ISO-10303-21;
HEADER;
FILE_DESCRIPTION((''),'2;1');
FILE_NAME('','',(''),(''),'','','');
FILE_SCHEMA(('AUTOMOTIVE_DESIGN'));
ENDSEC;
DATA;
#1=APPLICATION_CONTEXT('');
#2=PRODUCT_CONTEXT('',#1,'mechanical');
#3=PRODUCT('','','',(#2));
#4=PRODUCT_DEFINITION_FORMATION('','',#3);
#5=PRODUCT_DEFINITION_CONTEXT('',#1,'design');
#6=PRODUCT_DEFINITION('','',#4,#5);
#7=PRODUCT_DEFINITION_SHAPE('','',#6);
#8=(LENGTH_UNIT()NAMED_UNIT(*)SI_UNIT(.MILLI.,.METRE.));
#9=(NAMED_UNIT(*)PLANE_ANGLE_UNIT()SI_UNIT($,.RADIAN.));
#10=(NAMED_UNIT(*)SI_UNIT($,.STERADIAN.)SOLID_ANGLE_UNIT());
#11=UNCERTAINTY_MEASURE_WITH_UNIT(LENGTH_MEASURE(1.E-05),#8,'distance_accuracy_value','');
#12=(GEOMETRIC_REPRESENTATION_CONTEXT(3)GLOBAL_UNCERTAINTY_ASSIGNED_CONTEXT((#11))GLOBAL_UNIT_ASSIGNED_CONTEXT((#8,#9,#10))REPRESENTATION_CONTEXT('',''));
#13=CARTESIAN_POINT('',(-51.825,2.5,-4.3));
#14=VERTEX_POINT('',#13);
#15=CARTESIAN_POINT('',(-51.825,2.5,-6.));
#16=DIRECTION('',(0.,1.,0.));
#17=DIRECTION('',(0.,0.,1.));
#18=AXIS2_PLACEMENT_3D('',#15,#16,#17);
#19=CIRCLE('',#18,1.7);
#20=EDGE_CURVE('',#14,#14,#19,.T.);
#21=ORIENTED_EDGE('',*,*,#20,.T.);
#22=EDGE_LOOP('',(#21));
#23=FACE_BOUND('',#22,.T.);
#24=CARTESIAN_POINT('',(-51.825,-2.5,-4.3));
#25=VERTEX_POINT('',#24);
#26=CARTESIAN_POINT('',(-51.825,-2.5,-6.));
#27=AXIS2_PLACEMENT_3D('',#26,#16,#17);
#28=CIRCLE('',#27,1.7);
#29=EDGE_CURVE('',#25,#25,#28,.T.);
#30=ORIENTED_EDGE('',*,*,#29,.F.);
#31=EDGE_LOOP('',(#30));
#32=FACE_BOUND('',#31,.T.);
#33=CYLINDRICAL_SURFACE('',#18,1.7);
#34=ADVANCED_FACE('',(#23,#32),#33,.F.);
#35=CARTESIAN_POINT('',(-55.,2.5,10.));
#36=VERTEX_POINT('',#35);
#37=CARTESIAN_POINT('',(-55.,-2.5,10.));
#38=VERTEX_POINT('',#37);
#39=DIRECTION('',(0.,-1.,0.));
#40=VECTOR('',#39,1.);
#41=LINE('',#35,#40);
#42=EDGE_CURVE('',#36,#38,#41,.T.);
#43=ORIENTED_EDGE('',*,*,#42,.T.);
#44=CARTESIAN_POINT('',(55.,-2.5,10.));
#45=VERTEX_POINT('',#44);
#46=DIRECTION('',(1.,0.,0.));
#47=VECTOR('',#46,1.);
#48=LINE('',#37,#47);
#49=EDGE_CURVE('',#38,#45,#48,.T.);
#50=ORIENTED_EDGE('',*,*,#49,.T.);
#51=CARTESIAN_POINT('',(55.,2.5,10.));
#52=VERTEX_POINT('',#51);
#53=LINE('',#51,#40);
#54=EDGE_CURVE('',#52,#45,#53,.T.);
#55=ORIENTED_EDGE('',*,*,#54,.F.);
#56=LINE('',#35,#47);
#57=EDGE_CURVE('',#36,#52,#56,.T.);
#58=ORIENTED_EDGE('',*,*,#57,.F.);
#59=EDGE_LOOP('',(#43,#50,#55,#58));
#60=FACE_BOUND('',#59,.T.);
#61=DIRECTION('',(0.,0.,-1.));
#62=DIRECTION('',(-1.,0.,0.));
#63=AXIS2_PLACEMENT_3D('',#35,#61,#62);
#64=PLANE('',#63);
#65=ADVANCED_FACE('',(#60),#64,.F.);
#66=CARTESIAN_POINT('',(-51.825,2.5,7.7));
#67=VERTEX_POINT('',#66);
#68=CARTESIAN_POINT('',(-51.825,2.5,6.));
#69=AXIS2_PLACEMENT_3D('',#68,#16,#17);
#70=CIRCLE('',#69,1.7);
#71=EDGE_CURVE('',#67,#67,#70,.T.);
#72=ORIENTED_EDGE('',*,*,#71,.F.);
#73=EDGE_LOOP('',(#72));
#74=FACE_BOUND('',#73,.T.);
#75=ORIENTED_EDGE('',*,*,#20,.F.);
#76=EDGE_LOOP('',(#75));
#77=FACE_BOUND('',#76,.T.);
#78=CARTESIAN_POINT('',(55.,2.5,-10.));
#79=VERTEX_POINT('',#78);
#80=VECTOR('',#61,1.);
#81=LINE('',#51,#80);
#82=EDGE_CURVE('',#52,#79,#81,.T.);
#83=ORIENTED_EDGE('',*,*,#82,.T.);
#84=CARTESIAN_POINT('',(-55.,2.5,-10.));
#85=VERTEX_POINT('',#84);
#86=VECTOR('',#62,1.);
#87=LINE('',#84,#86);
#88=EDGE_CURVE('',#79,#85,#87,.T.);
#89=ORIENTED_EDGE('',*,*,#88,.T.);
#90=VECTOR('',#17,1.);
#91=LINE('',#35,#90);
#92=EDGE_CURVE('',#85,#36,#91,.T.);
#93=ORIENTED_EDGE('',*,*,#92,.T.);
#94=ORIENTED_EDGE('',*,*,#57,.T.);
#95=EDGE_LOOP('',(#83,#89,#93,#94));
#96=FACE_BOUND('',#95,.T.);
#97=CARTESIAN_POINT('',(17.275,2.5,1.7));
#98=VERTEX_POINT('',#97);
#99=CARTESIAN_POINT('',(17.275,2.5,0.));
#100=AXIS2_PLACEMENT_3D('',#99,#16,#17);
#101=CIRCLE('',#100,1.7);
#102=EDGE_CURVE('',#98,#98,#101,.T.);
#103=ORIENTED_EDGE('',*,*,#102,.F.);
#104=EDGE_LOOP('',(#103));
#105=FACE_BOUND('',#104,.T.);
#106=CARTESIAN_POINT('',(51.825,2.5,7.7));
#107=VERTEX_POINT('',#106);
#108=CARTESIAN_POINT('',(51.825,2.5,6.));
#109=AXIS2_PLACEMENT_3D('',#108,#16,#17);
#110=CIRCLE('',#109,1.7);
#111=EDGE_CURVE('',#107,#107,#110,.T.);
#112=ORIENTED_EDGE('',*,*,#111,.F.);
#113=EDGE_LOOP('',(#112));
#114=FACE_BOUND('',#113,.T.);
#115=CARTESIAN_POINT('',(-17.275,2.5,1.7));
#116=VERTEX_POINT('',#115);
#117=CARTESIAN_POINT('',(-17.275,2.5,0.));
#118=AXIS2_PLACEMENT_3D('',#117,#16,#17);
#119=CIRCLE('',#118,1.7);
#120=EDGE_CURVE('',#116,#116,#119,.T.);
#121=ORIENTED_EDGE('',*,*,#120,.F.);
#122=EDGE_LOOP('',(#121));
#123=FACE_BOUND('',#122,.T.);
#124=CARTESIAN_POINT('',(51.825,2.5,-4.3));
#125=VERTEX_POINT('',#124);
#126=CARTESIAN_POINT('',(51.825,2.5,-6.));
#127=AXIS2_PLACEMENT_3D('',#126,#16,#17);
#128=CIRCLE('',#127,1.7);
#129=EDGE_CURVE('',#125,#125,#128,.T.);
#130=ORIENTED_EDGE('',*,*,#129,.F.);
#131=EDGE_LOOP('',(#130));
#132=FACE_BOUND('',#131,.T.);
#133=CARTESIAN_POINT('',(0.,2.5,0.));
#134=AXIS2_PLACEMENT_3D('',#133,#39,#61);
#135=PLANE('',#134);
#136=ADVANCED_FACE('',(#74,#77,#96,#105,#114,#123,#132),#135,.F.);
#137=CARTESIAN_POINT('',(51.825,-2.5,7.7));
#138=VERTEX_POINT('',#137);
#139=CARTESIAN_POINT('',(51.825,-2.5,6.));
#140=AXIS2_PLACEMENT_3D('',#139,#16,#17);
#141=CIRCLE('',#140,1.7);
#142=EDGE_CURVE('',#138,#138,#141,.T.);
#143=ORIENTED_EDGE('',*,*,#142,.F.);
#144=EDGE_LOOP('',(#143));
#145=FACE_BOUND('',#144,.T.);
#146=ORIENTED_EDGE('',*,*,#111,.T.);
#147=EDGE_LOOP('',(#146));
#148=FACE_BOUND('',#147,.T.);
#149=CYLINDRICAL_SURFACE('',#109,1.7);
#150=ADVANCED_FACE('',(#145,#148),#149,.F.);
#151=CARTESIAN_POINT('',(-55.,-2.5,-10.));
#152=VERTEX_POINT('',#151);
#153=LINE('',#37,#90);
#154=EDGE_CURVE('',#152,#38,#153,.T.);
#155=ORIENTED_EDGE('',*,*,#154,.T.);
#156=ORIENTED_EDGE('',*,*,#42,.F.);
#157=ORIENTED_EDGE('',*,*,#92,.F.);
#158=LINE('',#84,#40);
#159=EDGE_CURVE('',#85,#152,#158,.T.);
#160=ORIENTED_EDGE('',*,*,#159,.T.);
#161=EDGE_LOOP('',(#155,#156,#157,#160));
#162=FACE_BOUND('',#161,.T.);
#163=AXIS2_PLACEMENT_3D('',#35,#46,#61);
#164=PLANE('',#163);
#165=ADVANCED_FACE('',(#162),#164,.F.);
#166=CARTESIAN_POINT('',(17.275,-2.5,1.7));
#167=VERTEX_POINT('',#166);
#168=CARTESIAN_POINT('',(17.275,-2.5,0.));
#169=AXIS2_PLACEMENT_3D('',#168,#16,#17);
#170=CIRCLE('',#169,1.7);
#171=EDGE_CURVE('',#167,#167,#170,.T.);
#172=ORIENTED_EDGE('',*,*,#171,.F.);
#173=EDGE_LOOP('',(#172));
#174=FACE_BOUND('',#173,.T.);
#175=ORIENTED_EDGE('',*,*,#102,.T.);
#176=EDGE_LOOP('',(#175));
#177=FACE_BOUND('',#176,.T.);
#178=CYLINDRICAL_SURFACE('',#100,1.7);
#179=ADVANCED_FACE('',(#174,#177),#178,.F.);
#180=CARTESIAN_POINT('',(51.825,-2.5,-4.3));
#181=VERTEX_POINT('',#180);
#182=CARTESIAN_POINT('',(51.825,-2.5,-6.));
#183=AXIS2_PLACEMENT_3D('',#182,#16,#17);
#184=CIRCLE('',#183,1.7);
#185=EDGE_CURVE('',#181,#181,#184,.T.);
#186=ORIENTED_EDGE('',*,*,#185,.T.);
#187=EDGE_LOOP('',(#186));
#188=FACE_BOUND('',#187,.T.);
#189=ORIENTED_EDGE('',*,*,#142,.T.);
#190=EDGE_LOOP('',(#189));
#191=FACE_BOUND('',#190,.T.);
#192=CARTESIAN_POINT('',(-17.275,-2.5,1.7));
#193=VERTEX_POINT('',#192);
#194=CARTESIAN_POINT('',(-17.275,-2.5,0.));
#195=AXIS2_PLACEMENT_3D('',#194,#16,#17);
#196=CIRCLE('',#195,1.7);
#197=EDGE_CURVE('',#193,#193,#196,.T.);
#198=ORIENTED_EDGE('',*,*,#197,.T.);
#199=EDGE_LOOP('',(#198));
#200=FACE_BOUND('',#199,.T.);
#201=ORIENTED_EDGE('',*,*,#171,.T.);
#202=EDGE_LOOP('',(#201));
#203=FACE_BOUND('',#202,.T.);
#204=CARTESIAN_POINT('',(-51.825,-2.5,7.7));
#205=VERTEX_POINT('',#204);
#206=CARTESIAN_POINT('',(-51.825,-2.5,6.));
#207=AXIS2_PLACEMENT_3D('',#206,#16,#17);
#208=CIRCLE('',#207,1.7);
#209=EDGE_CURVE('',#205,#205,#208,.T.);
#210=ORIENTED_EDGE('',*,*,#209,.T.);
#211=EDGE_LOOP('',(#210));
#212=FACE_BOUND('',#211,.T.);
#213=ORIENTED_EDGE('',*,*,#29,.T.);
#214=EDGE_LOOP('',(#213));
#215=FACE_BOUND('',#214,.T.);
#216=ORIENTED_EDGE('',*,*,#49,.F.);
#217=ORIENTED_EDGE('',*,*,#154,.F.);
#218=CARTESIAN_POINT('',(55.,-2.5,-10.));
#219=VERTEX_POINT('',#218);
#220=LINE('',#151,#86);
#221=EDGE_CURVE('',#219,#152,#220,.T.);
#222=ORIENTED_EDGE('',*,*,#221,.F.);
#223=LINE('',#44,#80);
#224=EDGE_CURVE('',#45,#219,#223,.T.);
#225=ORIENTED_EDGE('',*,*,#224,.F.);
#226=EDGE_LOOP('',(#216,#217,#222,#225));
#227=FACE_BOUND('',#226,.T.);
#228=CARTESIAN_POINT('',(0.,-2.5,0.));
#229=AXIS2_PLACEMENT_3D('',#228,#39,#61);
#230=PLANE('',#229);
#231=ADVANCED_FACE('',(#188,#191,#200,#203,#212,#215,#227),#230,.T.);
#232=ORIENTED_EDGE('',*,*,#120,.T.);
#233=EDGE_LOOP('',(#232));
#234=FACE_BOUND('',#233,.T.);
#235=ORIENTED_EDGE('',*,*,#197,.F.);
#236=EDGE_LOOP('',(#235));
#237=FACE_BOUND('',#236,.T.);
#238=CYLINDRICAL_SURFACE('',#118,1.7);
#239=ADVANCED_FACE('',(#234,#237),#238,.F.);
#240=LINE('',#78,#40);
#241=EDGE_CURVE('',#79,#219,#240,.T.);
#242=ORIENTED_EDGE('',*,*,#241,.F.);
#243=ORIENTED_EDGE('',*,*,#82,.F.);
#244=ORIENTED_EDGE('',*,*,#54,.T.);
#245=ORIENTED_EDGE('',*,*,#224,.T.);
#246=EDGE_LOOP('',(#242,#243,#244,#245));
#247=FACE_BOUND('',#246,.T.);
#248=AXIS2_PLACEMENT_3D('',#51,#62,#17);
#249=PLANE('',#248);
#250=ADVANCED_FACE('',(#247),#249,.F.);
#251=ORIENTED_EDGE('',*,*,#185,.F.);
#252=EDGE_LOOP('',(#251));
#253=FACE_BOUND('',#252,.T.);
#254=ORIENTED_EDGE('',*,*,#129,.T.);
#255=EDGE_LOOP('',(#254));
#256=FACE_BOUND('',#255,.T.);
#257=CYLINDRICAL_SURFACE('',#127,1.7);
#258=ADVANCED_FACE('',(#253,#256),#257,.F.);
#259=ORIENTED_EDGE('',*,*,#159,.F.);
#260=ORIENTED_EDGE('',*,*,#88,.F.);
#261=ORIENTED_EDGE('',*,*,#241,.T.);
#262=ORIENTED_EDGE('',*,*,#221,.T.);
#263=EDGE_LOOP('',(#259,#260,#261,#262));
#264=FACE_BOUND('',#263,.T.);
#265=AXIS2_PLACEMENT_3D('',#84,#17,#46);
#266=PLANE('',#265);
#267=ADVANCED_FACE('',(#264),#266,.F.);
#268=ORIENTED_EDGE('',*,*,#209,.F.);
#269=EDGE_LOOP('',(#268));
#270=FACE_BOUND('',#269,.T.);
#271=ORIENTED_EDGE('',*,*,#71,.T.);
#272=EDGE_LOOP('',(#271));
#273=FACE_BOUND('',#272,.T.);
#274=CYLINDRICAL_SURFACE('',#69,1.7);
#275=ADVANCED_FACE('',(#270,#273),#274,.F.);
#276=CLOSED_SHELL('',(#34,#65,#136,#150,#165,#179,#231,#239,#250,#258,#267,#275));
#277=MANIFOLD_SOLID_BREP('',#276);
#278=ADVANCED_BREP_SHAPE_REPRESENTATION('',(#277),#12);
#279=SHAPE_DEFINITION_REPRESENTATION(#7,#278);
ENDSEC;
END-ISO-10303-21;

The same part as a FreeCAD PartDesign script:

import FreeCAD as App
import Part
import Sketcher
from FreeCAD import Vector
Q = App.Units.Quantity

doc = App.newDocument("Part")
body = doc.addObject("PartDesign::Body", "Body")

# Sketch on XZ plane
sketch1 = doc.addObject("Sketcher::SketchObject", "Sketch")
body.addObject(sketch1)
sketch1.AttachmentSupport = (doc.XZ_Plane, [""])
sketch1.MapMode = "FlatFace"
sketch1.addGeometry([
    Part.LineSegment(Vector(-55, -10, 0), Vector(-55, 10, 0)),
    Part.LineSegment(Vector(-55, 10, 0), Vector(55, 10, 0)),
    Part.LineSegment(Vector(55, 10, 0), Vector(55, -10, 0)),
    Part.LineSegment(Vector(55, -10, 0), Vector(-55, -10, 0)),
], False)
sketch1.addConstraint([
    Sketcher.Constraint("Coincident", 0, 2, 1, 1),
    Sketcher.Constraint("Coincident", 1, 2, 2, 1),
    Sketcher.Constraint("Coincident", 2, 2, 3, 1),
    Sketcher.Constraint("Coincident", 3, 2, 0, 1),
    Sketcher.Constraint("Vertical", 0),
    Sketcher.Constraint("Horizontal", 1),
    Sketcher.Constraint("Vertical", 2),
    Sketcher.Constraint("Horizontal", 3),
    Sketcher.Constraint("Symmetric", 0, 2, 2, 2, -1, 1),
    Sketcher.Constraint("DistanceX", 1, 1, 1, 2, Q("110 mm")),
    Sketcher.Constraint("DistanceY", 0, 1, 0, 2, Q("20 mm")),
])
pad1 = doc.addObject("PartDesign::Pad", "Pad")
body.addObject(pad1)
pad1.Profile = sketch1
pad1.Length = 5
pad1.Midplane = True

# Sketch on XZ plane
sketch2 = doc.addObject("Sketcher::SketchObject", "Sketch001")
body.addObject(sketch2)
sketch2.AttachmentSupport = (doc.XZ_Plane, [""])
sketch2.MapMode = "FlatFace"
sketch2.AttachmentOffset = App.Placement(Vector(0, 0, -2.5), App.Rotation())
sketch2.addGeometry([
    Part.Circle(Vector(-17.3, 0, 0), Vector(0, 0, 1), 1.7),  # 0
    Part.Circle(Vector(-51.8, 6, 0), Vector(0, 0, 1), 1.7),  # 1
    Part.Circle(Vector(51.8, 6, 0), Vector(0, 0, 1), 1.7),  # 2
    Part.Circle(Vector(-51.8, -6, 0), Vector(0, 0, 1), 1.7),  # 3
    Part.Circle(Vector(51.8, -6, 0), Vector(0, 0, 1), 1.7),  # 4
    Part.Circle(Vector(17.3, 0, 0), Vector(0, 0, 1), 1.7),  # 5
], False)
sketch2.addConstraint([
    Sketcher.Constraint("Equal", 0, 1),
    Sketcher.Constraint("Equal", 1, 2),
    Sketcher.Constraint("Equal", 2, 3),
    Sketcher.Constraint("Equal", 3, 4),
    Sketcher.Constraint("Equal", 4, 5),
    Sketcher.Constraint("Symmetric", 2, 3, 3, 3, -1, 1),
    Sketcher.Constraint("Symmetric", 1, 3, 4, 3, -1, 1),
    Sketcher.Constraint("Symmetric", 0, 3, 5, 3, -1, 1),
    Sketcher.Constraint("Symmetric", 1, 3, 2, 3, -2),
    Sketcher.Constraint("PointOnObject", 0, 3, -1),
    Sketcher.Constraint("Diameter", 0, Q("3.4 mm")),
    Sketcher.Constraint("DistanceY", -1, 1, 1, 3, Q("6 mm")),
    Sketcher.Constraint("DistanceX", 0, 3, 2, 3, Q("69.1 mm")),
    Sketcher.Constraint("DistanceX", 1, 3, 0, 3, Q("34.55 mm")),
])
doc.recompute()
hole = doc.addObject("PartDesign::Hole", "Hole")
body.addObject(hole)
hole.Profile = sketch2
hole.ThreadType = "None"
hole.Diameter = 3.4
hole.DepthType = "ThroughAll"
hole.Reversed = True

doc.recompute()
